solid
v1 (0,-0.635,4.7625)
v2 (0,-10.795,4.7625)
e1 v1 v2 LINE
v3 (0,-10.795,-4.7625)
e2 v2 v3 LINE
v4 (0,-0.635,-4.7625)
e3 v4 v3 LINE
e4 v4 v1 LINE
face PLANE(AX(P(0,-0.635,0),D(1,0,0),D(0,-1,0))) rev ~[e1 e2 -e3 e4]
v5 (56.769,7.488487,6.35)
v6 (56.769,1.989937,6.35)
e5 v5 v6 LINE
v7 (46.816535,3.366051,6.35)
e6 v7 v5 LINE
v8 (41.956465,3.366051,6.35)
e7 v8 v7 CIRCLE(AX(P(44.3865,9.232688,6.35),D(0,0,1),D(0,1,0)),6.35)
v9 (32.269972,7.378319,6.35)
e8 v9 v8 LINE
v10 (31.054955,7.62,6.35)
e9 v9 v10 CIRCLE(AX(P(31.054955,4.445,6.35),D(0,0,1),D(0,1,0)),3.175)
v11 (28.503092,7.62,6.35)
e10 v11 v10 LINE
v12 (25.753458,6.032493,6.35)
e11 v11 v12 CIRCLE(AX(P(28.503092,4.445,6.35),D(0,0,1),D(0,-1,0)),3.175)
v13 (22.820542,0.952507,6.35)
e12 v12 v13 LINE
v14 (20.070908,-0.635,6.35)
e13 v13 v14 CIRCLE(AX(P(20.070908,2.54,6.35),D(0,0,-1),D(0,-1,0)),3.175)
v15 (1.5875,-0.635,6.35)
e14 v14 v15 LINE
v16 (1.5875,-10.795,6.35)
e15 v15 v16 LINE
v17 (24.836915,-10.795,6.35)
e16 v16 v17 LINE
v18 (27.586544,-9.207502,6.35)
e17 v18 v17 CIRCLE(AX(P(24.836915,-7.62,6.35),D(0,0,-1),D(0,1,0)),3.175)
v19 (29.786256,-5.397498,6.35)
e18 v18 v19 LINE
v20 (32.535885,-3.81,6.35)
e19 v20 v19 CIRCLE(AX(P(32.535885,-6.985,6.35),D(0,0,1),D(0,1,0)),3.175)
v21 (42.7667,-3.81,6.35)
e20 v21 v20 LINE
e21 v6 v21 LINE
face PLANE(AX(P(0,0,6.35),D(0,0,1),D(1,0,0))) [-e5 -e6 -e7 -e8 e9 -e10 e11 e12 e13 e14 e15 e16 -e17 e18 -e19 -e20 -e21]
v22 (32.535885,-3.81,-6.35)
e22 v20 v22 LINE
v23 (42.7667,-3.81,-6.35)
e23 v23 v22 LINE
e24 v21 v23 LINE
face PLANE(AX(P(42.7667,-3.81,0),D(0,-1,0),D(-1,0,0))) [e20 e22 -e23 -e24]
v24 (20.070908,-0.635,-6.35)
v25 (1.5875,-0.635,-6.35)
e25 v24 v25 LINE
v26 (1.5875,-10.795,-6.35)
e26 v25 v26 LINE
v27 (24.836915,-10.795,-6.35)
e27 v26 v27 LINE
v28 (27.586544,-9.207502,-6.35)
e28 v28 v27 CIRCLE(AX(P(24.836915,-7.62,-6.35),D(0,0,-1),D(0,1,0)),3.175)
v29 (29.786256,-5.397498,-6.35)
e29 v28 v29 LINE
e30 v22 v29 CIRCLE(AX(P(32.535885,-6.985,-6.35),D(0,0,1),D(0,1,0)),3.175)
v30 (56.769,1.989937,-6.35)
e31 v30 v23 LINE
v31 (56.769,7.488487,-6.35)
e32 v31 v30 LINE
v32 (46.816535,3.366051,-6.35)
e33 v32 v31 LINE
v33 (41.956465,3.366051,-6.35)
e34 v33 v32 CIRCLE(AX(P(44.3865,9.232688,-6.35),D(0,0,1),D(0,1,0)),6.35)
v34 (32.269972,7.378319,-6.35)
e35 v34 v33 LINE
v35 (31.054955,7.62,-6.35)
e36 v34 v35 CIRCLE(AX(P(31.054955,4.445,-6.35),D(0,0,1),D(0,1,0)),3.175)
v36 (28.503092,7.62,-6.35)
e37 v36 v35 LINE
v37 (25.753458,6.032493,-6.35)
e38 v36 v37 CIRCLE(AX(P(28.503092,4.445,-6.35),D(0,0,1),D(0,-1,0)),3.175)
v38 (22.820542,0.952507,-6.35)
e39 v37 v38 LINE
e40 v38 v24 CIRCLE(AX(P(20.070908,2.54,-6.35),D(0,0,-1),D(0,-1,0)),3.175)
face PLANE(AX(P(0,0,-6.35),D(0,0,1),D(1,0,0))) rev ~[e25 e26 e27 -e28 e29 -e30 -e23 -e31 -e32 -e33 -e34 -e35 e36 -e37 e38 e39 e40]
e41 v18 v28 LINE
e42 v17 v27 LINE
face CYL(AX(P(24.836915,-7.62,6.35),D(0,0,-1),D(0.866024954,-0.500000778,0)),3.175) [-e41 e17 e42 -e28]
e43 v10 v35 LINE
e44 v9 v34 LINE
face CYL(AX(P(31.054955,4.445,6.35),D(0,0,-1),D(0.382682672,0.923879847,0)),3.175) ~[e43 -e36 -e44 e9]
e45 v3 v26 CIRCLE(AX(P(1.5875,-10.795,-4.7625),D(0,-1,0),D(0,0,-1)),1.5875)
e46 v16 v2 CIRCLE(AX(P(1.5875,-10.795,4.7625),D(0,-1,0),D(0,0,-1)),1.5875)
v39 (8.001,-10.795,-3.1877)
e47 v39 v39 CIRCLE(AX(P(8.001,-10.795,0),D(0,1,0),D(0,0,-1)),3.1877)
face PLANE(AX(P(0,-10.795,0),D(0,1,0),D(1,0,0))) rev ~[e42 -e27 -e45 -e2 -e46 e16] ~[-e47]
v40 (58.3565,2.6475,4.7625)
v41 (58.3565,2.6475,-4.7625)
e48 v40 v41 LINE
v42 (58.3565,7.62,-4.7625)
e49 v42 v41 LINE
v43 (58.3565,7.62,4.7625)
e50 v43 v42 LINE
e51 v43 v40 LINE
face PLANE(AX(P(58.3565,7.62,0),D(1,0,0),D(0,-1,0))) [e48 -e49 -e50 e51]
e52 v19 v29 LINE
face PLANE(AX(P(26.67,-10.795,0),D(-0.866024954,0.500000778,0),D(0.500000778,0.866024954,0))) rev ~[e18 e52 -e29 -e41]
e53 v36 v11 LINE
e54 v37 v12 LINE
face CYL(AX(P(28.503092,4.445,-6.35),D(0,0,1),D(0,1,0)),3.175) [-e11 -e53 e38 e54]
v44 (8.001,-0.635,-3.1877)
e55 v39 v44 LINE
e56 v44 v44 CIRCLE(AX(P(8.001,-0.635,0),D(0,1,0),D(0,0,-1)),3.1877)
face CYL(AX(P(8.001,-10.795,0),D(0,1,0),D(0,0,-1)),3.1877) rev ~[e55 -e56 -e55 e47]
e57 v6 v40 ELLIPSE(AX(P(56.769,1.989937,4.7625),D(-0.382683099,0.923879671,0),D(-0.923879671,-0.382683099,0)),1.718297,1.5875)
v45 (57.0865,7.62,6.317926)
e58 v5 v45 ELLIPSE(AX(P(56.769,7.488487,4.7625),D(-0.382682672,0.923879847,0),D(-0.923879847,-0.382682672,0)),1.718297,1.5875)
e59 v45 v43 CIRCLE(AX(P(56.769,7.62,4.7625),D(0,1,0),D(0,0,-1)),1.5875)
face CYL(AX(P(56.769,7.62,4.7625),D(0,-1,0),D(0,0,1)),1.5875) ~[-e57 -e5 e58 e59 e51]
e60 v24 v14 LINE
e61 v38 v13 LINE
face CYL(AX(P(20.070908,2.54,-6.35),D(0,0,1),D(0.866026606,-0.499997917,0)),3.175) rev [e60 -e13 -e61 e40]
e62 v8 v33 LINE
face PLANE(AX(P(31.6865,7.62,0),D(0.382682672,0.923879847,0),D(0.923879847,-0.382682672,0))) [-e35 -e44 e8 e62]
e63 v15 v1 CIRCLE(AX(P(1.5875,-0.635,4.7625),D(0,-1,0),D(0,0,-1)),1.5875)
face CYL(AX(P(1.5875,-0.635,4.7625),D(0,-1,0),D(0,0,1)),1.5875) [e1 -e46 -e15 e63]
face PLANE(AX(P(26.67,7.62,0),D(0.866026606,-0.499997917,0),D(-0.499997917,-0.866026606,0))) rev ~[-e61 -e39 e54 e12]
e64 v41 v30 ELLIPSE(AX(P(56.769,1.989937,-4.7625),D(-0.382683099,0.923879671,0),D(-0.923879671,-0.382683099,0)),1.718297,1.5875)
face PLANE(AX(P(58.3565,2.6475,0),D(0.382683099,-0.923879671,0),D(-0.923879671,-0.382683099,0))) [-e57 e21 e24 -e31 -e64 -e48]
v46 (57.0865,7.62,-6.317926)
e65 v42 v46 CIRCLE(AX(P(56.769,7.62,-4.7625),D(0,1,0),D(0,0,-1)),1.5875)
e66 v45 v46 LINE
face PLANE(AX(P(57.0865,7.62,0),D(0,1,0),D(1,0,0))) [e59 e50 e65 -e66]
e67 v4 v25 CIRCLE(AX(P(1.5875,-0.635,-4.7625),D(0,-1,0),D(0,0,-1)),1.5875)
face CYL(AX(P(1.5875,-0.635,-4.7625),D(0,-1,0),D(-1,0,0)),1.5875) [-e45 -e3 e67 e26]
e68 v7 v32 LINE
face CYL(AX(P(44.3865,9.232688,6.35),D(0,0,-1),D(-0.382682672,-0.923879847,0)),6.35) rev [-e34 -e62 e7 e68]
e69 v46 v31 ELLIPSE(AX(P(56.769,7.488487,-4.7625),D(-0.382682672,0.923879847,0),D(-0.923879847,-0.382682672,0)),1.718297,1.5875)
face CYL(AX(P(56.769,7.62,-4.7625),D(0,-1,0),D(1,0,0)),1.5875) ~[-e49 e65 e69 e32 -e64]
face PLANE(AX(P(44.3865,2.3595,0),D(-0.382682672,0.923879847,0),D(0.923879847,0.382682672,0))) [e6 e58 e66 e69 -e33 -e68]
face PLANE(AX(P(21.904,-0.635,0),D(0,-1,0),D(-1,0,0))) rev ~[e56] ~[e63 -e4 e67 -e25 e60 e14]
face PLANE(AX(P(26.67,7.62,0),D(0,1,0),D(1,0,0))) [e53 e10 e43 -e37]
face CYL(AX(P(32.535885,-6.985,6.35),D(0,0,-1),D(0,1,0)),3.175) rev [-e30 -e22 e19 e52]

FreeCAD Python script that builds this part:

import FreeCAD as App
import Part
import Sketcher

V = App.Vector
Q = App.Units.Quantity


def edges_at(feature, points):
    """Names of the edges that pass closest to the given points."""
    edges = feature.Shape.Edges
    near = lambda p: min(range(len(edges)), key=lambda i: edges[i].distToShape(Part.Vertex(*p))[0])
    return sorted({f"Edge{near(p) + 1}" for p in points})

doc = App.newDocument("Part")
body = doc.addObject("PartDesign::Body", "Body")

sketch1 = body.newObject("Sketcher::SketchObject", "Sketch")
sketch1.AttachmentSupport = (doc.getObject("XY_Plane"), [""])
sketch1.MapMode = "FlatFace"
sketch1.addGeometry([
    Part.LineSegment(V(31.7, 7.6, 0), V(26.7, 7.6, 0)),
    Part.LineSegment(V(26.7, 7.6, 0), V(21.9, -0.6, 0)),
    Part.LineSegment(V(21.9, -0.6, 0), V(0, -0.6, 0)),
    Part.LineSegment(V(0, -0.6, 0), V(0, -10.8, 0)),
    Part.LineSegment(V(0, -10.8, 0), V(26.7, -10.8, 0)),
    Part.LineSegment(V(26.7, -10.8, 0), V(30.7, -3.8, 0)),
    Part.LineSegment(V(30.7, -3.8, 0), V(42.8, -3.8, 0)),
    Part.LineSegment(V(42.8, -3.8, 0), V(58.4, 2.6, 0)),
    Part.LineSegment(V(58.4, 2.6, 0), V(58.4, 7.6, 0)),
    Part.LineSegment(V(58.4, 7.6, 0), V(57.1, 7.6, 0)),
    Part.LineSegment(V(57.1, 7.6, 0), V(44.4, 2.4, 0)),
    Part.LineSegment(V(44.4, 2.4, 0), V(31.7, 7.6, 0)),
], False)
sketch1.addConstraint([
    Sketcher.Constraint("Coincident", 0, 2, 1, 1),
    Sketcher.Constraint("Coincident", 1, 2, 2, 1),
    Sketcher.Constraint("Coincident", 2, 2, 3, 1),
    Sketcher.Constraint("Coincident", 3, 2, 4, 1),
    Sketcher.Constraint("Coincident", 4, 2, 5, 1),
    Sketcher.Constraint("Coincident", 5, 2, 6, 1),
    Sketcher.Constraint("Coincident", 6, 2, 7, 1),
    Sketcher.Constraint("Coincident", 7, 2, 8, 1),
    Sketcher.Constraint("Coincident", 8, 2, 9, 1),
    Sketcher.Constraint("Coincident", 9, 2, 10, 1),
    Sketcher.Constraint("Coincident", 10, 2, 11, 1),
    Sketcher.Constraint("Coincident", 11, 2, 0, 1),
    Sketcher.Constraint("Horizontal", 0),
    Sketcher.Constraint("Horizontal", 2),
    Sketcher.Constraint("Vertical", 3),
    Sketcher.Constraint("Horizontal", 4),
    Sketcher.Constraint("Horizontal", 6),
    Sketcher.Constraint("Vertical", 8),
    Sketcher.Constraint("Horizontal", 9),
    Sketcher.Constraint("PointOnObject", 2, 2, -2),
    Sketcher.Constraint("Parallel", 1, 5),
    Sketcher.Constraint("Parallel", 7, 10),
    Sketcher.Constraint("Horizontal", 0, 2, 8, 2),
    Sketcher.Constraint("Vertical", 0, 2, 4, 2),
    Sketcher.Constraint("Equal", 10, 11),
    Sketcher.Constraint("DistanceY", 3, 2, 3, 1, Q("0.4 in")),
    Sketcher.Constraint("Angle", 1, Q("-119.9999 deg")),
    Sketcher.Constraint("DistanceX", 4, 1, 4, 2, Q("1.05 in")),
    Sketcher.Constraint("DistanceX", 9, 2, 9, 1, Q("0.05 in")),
    Sketcher.Constraint("DistanceY", -1, 1, 0, 2, Q("0.3 in")),
    Sketcher.Constraint("DistanceX", 10, 2, 9, 2, Q("0.5 in")),
    Sketcher.Constraint("DistanceY", 5, 2, 0, 2, Q("0.45 in")),
    Sketcher.Constraint("DistanceY", 1, 2, -1, 1, Q("0.025 in")),
    Sketcher.Constraint("Angle", 7, Q("22.5 deg")),
    Sketcher.Constraint("DistanceX", 0, 2, 0, 1, Q("0.1975 in")),
    Sketcher.Constraint("DistanceX", 6, 1, 6, 2, Q("12.064 mm")),
])
pad1 = body.newObject("PartDesign::Pad", "Pad")
pad1.Profile = sketch1
pad1.Length = Q("0.5 in")
pad1.Midplane = True

sketch2 = body.newObject("Sketcher::SketchObject", "Sketch001")
sketch2.AttachmentSupport = (doc.getObject("XZ_Plane"), [""])
sketch2.MapMode = "FlatFace"
sketch2.AttachmentOffset = App.Placement(V(0, 0, 0.425 * 25.4), App.Rotation())
sketch2.addGeometry(Part.Circle(V(8, 0, 0), V(0, 0, 1), 3.2), False)
sketch2.addConstraint([
    Sketcher.Constraint("PointOnObject", 0, 3, -1),
    Sketcher.Constraint("Diameter", 0, Q("0.251 in")),
    Sketcher.Constraint("DistanceX", -1, 1, 0, 3, Q("0.315 in")),
])
doc.recompute()
hole = body.newObject("PartDesign::Hole", "Hole")
hole.Profile = sketch2
hole.ThreadType = "None"
hole.Diameter = Q("0.251 in")
hole.DepthType = "ThroughAll"
doc.recompute()

fillet = body.newObject("PartDesign::Fillet", "Fillet")
fillet.Base = (hole, edges_at(hole, [(44.386, 2.36, 0)]))
fillet.Radius = Q("0.25 in")
doc.recompute()

fillet2 = body.newObject("PartDesign::Fillet", "Fillet001")
fillet2.Base = (fillet, edges_at(fillet, [
    (58.356, 5.134, 6.35),
    (58.356, 5.134, -6.35),
    (0, -5.715, -6.35),
    (0, -5.715, 6.35),
]))
fillet2.Radius = Q("0.0625 in")
doc.recompute()

fillet3 = body.newObject("PartDesign::Fillet", "Fillet002")
fillet3.Base = (fillet2, edges_at(fillet2, [
    (21.904, -0.635, 0),
    (26.67, 7.62, 0),
    (31.686, 7.62, 0),
    (26.67, -10.795, 0),
    (30.703, -3.81, 0),
]))
fillet3.Radius = Q("0.125 in")

doc.recompute()
